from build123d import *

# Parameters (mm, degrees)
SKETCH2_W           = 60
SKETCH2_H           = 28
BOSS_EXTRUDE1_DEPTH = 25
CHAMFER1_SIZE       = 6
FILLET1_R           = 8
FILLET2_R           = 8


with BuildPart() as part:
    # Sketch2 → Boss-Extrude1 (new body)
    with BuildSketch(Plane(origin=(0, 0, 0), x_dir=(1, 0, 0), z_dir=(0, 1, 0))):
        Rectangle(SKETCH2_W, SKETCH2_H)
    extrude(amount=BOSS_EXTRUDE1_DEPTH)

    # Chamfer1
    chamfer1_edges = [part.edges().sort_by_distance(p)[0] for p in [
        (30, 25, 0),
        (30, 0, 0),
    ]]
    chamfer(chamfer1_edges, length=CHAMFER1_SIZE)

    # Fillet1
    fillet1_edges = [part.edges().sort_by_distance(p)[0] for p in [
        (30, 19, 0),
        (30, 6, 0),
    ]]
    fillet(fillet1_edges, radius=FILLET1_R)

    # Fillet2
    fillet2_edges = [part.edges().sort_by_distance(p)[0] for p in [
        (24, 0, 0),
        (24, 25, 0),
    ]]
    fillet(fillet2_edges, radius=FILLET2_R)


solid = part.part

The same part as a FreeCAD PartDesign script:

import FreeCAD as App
import Part
import Sketcher

V = App.Vector


def edges_at(feature, points):
    """Names of the edges that pass closest to the given points."""
    edges = feature.Shape.Edges
    near = lambda p: min(range(len(edges)), key=lambda i: edges[i].distToShape(Part.Vertex(*p))[0])
    return sorted({f"Edge{near(p) + 1}" for p in points})


def add_polygon(sketch, points):
    """Adds a closed chain of lines whose ends are joined by coincident constraints."""
    first, n = sketch.GeometryCount, len(points)
    for a, b in zip(points, points[1:] + points[:1]):
        sketch.addGeometry(Part.LineSegment(App.Vector(*a, 0), App.Vector(*b, 0)), False)
    for i in range(n):
        sketch.addConstraint(Sketcher.Constraint("Coincident", first + i, 2, first + (i + 1) % n, 1))

doc = App.newDocument("Part")
params = doc.addObject("Spreadsheet::Sheet", "Params")
for row, (alias, value) in enumerate([
    ("sketch1_width", "60 mm"),
    ("sketch1_height", "28 mm"),
    ("pad1_length", "25 mm"),
    ("chamfer_size", "6 mm"),
    ("fillet_radius", "8 mm"),
    ("fillet2_radius", "8 mm"),
], start=1):
    params.set(f"A{row}", alias)
    params.set(f"B{row}", "=" + value)
    params.setAlias(f"B{row}", alias)

body = doc.addObject("PartDesign::Body", "Body")

sketch1 = body.newObject("Sketcher::SketchObject", "Sketch")
sketch1.AttachmentSupport = (doc.getObject("XZ_Plane"), [""])
sketch1.MapMode = "FlatFace"
add_polygon(sketch1, [(-30, -14), (-30, 14), (30, 14), (30, -14)])
sketch1.addConstraint([
    Sketcher.Constraint("Vertical", 0),
    Sketcher.Constraint("Horizontal", 1),
    Sketcher.Constraint("Vertical", 2),
    Sketcher.Constraint("Horizontal", 3),
    Sketcher.Constraint("Symmetric", 0, 2, 2, 2, -1, 1),
    Sketcher.Constraint("DistanceX", 1, 1, 1, 2, 60.0),
    Sketcher.Constraint("DistanceY", 0, 1, 0, 2, 28.0),
])
sketch1.setExpression("Constraints[9]", "Params.sketch1_width")
sketch1.setExpression("Constraints[10]", "Params.sketch1_height")
pad1 = body.newObject("PartDesign::Pad", "Pad")
pad1.Profile = sketch1
pad1.setExpression("Length", "Params.pad1_length")
pad1.Reversed = True
doc.recompute()

chamfer = body.newObject("PartDesign::Chamfer", "Chamfer")
chamfer.Base = (pad1, edges_at(pad1, [(30, 25, 0), (30, 0, 0)]))
chamfer.setExpression("Size", "Params.chamfer_size")
doc.recompute()

fillet = body.newObject("PartDesign::Fillet", "Fillet")
fillet.Base = (chamfer, edges_at(chamfer, [(30, 19, 0), (30, 6, 0)]))
fillet.setExpression("Radius", "Params.fillet_radius")
doc.recompute()

fillet2 = body.newObject("PartDesign::Fillet", "Fillet001")
fillet2.Base = (fillet, edges_at(fillet, [(24, 0, 0), (24, 25, 0)]))
fillet2.setExpression("Radius", "Params.fillet2_radius")

doc.recompute()
